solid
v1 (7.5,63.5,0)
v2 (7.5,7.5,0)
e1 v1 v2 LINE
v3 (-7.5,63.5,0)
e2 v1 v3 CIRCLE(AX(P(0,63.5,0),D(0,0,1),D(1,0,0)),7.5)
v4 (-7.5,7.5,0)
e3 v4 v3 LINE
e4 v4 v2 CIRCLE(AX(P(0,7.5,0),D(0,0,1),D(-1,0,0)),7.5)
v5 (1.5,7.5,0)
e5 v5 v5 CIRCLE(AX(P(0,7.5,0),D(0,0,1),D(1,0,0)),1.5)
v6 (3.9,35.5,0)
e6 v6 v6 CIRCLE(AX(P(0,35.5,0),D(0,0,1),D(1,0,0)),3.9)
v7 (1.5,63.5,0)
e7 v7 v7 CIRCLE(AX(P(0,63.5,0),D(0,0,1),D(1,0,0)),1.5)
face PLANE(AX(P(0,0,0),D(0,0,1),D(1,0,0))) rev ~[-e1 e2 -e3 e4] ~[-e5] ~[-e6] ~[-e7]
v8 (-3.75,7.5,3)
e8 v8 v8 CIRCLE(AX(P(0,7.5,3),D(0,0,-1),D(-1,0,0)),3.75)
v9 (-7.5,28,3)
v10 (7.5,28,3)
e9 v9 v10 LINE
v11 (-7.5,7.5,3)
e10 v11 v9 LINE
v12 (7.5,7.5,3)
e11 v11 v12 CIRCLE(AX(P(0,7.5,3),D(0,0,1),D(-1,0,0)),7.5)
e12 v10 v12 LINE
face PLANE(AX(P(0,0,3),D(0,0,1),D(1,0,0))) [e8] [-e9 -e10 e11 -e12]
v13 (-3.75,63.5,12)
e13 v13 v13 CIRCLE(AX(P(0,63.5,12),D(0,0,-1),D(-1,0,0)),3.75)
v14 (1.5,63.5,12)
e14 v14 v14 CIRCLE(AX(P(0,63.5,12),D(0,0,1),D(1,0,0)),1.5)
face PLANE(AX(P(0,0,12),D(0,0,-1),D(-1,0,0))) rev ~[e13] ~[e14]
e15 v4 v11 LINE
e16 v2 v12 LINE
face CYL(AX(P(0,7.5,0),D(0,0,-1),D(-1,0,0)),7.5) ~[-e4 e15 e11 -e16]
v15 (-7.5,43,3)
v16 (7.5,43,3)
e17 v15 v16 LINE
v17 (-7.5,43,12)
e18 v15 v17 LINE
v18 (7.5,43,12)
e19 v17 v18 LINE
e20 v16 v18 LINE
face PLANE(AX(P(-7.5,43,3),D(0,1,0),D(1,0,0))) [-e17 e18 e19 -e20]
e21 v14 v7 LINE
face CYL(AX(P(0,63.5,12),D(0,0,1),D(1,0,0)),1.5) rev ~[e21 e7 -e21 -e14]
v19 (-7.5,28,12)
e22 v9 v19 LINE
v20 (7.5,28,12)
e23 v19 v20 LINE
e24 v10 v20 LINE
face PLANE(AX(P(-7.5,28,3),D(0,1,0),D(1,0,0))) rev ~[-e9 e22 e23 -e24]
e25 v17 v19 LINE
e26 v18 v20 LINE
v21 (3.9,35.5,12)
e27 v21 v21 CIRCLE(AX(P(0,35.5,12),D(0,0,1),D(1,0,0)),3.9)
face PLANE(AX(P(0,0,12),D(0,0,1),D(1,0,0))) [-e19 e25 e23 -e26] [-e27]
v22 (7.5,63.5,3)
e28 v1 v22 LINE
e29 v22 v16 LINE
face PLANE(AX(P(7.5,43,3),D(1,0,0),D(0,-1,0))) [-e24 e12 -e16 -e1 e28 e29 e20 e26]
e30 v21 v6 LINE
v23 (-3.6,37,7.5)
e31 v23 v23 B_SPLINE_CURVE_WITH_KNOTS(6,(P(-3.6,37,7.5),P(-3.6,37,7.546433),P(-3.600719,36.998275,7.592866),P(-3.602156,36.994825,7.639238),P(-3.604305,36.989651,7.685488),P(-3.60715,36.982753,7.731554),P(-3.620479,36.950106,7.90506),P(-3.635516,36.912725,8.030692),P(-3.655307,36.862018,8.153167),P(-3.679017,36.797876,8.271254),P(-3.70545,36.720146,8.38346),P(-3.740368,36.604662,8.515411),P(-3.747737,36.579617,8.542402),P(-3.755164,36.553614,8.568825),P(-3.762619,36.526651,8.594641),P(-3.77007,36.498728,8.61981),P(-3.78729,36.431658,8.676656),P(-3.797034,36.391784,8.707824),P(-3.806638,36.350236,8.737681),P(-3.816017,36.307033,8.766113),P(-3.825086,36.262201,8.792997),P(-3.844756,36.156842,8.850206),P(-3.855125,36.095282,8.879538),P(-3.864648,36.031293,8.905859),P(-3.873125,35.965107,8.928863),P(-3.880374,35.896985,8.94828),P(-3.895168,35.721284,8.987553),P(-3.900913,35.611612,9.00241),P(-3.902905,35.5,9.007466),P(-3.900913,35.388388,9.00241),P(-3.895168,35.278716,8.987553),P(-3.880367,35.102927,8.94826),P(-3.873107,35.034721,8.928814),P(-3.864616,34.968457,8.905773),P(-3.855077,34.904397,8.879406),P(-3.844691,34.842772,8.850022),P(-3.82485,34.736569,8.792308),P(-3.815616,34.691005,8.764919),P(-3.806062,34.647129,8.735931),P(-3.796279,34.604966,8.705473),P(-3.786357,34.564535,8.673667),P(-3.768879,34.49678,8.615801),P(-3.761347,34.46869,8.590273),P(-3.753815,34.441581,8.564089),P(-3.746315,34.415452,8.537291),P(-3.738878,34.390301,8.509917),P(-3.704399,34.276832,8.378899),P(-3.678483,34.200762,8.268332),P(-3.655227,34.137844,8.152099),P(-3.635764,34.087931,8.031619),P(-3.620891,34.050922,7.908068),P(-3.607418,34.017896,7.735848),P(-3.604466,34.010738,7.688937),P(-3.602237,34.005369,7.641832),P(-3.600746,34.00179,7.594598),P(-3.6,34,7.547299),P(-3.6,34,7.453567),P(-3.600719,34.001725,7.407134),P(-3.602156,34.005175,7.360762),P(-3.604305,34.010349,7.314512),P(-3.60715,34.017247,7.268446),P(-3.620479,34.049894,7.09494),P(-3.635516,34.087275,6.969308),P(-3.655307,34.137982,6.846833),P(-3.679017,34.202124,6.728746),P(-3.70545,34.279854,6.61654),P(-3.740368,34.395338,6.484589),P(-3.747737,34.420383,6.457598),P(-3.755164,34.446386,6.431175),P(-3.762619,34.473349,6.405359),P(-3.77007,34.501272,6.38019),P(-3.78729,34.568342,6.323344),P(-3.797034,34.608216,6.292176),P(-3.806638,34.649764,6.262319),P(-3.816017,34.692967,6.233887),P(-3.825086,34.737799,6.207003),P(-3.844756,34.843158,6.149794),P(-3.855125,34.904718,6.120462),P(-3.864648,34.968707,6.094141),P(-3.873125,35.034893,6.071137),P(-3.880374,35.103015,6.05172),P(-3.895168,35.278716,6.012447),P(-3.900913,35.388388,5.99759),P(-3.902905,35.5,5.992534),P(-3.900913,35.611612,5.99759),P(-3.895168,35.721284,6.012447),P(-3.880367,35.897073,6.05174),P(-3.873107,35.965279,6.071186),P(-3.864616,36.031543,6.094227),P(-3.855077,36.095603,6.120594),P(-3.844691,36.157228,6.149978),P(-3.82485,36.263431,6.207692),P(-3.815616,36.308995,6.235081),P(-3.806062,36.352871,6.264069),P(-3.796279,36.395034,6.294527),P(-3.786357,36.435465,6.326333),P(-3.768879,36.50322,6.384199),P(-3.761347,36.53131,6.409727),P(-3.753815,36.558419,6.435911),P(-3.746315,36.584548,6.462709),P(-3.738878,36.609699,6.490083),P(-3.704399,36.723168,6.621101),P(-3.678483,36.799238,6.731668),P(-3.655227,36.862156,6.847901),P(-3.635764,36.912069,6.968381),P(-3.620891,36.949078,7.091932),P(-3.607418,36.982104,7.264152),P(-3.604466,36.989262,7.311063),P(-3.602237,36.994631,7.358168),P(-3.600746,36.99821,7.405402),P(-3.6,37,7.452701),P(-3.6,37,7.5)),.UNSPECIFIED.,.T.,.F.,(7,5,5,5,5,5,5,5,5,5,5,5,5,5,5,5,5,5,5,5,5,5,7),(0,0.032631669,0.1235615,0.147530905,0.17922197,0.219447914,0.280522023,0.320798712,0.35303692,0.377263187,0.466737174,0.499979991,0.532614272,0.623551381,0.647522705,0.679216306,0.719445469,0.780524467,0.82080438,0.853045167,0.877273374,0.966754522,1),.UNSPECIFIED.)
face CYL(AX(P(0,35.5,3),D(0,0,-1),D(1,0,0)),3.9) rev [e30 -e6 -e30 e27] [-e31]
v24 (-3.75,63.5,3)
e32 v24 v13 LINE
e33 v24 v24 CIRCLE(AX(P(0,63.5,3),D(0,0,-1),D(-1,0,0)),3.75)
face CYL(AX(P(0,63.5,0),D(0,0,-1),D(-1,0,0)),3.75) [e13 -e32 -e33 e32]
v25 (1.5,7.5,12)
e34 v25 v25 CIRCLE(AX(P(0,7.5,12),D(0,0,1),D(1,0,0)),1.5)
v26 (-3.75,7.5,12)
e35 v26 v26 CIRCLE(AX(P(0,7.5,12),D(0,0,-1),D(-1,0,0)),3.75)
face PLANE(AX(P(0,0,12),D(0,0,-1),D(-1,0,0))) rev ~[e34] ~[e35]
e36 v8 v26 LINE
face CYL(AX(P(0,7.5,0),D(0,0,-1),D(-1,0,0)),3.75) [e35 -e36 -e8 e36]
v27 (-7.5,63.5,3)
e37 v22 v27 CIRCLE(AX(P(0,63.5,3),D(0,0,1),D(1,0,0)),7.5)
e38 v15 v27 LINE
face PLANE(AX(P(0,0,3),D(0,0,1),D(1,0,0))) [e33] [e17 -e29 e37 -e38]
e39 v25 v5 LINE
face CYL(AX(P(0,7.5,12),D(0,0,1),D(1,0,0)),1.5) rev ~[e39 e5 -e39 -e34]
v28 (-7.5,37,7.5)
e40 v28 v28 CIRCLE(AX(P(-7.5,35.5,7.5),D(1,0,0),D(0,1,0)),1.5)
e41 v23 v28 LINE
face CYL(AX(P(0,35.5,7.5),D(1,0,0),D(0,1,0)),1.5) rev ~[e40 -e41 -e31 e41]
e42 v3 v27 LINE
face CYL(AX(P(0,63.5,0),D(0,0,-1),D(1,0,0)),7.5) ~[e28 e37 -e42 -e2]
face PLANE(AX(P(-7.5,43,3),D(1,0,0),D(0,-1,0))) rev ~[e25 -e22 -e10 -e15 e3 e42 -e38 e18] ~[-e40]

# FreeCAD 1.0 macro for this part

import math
import FreeCAD as App
import Part
import Sketcher

V = App.Vector


def add_polygon(sketch, points):
    """Adds a closed chain of lines whose ends are joined by coincident constraints."""
    first, n = sketch.GeometryCount, len(points)
    for a, b in zip(points, points[1:] + points[:1]):
        sketch.addGeometry(Part.LineSegment(App.Vector(*a, 0), App.Vector(*b, 0)), False)
    for i in range(n):
        sketch.addConstraint(Sketcher.Constraint("Coincident", first + i, 2, first + (i + 1) % n, 1))

doc = App.newDocument("Part")
body = doc.addObject("PartDesign::Body", "Body")

# Sketch on XY plane
sketch1 = body.newObject("Sketcher::SketchObject", "Sketch")
sketch1.AttachmentSupport = (doc.getObject("XY_Plane"), [""])
sketch1.MapMode = "FlatFace"
sketch1.addGeometry(Part.LineSegment(V(7.5, 7.5, 0), V(7.5, 63.5, 0)), False)
sketch1.addGeometry(Part.ArcOfCircle(Part.Circle(V(0, 63.5, 0), V(0, 0, 1), 7.5), math.radians(0), math.radians(180)), False)
sketch1.addGeometry(Part.LineSegment(V(-7.5, 63.5, 0), V(-7.5, 7.5, 0)), False)
sketch1.addGeometry(Part.ArcOfCircle(Part.Circle(V(0, 7.5, 0), V(0, 0, 1), 7.5), math.radians(180), math.radians(360)), False)
sketch1.addGeometry(Part.Circle(V(0, 7.5, 0), V(0, 0, 1), 3.75), False)
sketch1.addGeometry(Part.Circle(V(0, 35.5, 0), V(0, 0, 1), 3.9), False)
sketch1.addGeometry(Part.Circle(V(0, 63.5, 0), V(0, 0, 1), 3.75), False)
sketch1.addConstraint(Sketcher.Constraint("Tangent", 0, 2, 1, 1))
sketch1.addConstraint(Sketcher.Constraint("Tangent", 1, 2, 2, 1))
sketch1.addConstraint(Sketcher.Constraint("Tangent", 2, 2, 3, 1))
sketch1.addConstraint(Sketcher.Constraint("Tangent", 3, 2, 0, 1))
sketch1.addConstraint(Sketcher.Constraint("Vertical", 0))
sketch1.addConstraint(Sketcher.Constraint("Vertical", 2))
sketch1.addConstraint(Sketcher.Constraint("Coincident", 4, 3, 3, 3))
sketch1.addConstraint(Sketcher.Constraint("Coincident", 6, 3, 1, 3))
sketch1.addConstraint(Sketcher.Constraint("Equal", 4, 6))
sketch1.addConstraint(Sketcher.Constraint("PointOnObject", 1, 3, -2))
sketch1.addConstraint(Sketcher.Constraint("PointOnObject", 5, 3, -2))
sketch1.addConstraint(Sketcher.Constraint("Diameter", 4, 7.5))
sketch1.addConstraint(Sketcher.Constraint("Diameter", 5, 7.8))
sketch1.addConstraint(Sketcher.Constraint("Radius", 1, 7.5))
sketch1.addConstraint(Sketcher.Constraint("DistanceY", 0, 1, 0, 2, 56.0))
sketch1.addConstraint(Sketcher.Constraint("DistanceY", -1, 1, 3, 3, 7.5))
sketch1.addConstraint(Sketcher.Constraint("DistanceY", 5, 3, 1, 3, 28.0))
pad1 = body.newObject("PartDesign::Pad", "Pad")
pad1.Profile = sketch1
pad1.Length = 3

# Sketch on XY plane
sketch2 = body.newObject("Sketcher::SketchObject", "Sketch001")
sketch2.AttachmentSupport = (doc.getObject("XY_Plane"), [""])
sketch2.MapMode = "FlatFace"
sketch2.addGeometry(Part.Circle(V(0, 63.5, 0), V(0, 0, 1), 3.75), False)
sketch2.addGeometry(Part.Circle(V(0, 7.5, 0), V(0, 0, 1), 3.75), False)
sketch2.addConstraint(Sketcher.Constraint("Equal", 0, 1))
sketch2.addConstraint(Sketcher.Constraint("PointOnObject", 0, 3, -2))
sketch2.addConstraint(Sketcher.Constraint("PointOnObject", 1, 3, -2))
sketch2.addConstraint(Sketcher.Constraint("Diameter", 0, 7.5))
sketch2.addConstraint(Sketcher.Constraint("DistanceY", 1, 3, 0, 3, 56.0))
sketch2.addConstraint(Sketcher.Constraint("DistanceY", -1, 1, 0, 3, 63.5))
pad2 = body.newObject("PartDesign::Pad", "Pad001")
pad2.Profile = sketch2
pad2.Length = 12

# Sketch on XY plane
sketch3 = body.newObject("Sketcher::SketchObject", "Sketch002")
sketch3.AttachmentSupport = (doc.getObject("XY_Plane"), [""])
sketch3.MapMode = "FlatFace"
sketch3.AttachmentOffset = App.Placement(V(0, 0, 12), App.Rotation())
sketch3.addGeometry(Part.Circle(V(0, 63.5, 0), V(0, 0, 1), 1.5), False)
sketch3.addGeometry(Part.Circle(V(0, 7.5, 0), V(0, 0, 1), 1.5), False)
sketch3.addConstraint(Sketcher.Constraint("Equal", 0, 1))
sketch3.addConstraint(Sketcher.Constraint("PointOnObject", 0, 3, -2))
sketch3.addConstraint(Sketcher.Constraint("PointOnObject", 1, 3, -2))
sketch3.addConstraint(Sketcher.Constraint("Diameter", 0, 3.0))
sketch3.addConstraint(Sketcher.Constraint("DistanceY", 1, 3, 0, 3, 56.0))
sketch3.addConstraint(Sketcher.Constraint("DistanceY", -1, 1, 0, 3, 63.5))
pocket1 = body.newObject("PartDesign::Pocket", "Pocket")
pocket1.Profile = sketch3
pocket1.Type = "ThroughAll"

# Sketch on XY plane
sketch4 = body.newObject("Sketcher::SketchObject", "Sketch003")
sketch4.AttachmentSupport = (doc.getObject("XY_Plane"), [""])
sketch4.MapMode = "FlatFace"
sketch4.AttachmentOffset = App.Placement(V(0, 0, 3), App.Rotation())
add_polygon(sketch4, [(7.5, 28), (7.5, 43), (-7.5, 43), (-7.5, 28)])  # lines 0-3
sketch4.addGeometry(Part.Circle(V(0, 35.5, 0), V(0, 0, 1), 3.9), False)  # 4
sketch4.addConstraint(Sketcher.Constraint("Vertical", 0))
sketch4.addConstraint(Sketcher.Constraint("Horizontal", 1))
sketch4.addConstraint(Sketcher.Constraint("Vertical", 2))
sketch4.addConstraint(Sketcher.Constraint("Horizontal", 3))
sketch4.addConstraint(Sketcher.Constraint("PointOnObject", 4, 3, -2))
sketch4.addConstraint(Sketcher.Constraint("Equal", 3, 0))
sketch4.addConstraint(Sketcher.Constraint("DistanceX", 1, 2, 1, 1, 15.0))
sketch4.addConstraint(Sketcher.Constraint("Diameter", 4, 7.8))
sketch4.addConstraint(Sketcher.Constraint("DistanceY", -1, 1, 0, 2, 43.0))
sketch4.addConstraint(Sketcher.Constraint("DistanceY", -1, 1, 4, 3, 35.5))
sketch4.addConstraint(Sketcher.Constraint("DistanceX", -1, 1, 0, 2, 7.5))
pad3 = body.newObject("PartDesign::Pad", "Pad002")
pad3.Profile = sketch4
pad3.Length = 9

# Sketch on YZ plane
sketch5 = body.newObject("Sketcher::SketchObject", "Sketch004")
sketch5.AttachmentSupport = (doc.getObject("YZ_Plane"), [""])
sketch5.MapMode = "FlatFace"
sketch5.addGeometry(Part.Circle(V(35.5, 7.5, 0), V(0, 0, 1), 1.5), False)
sketch5.addConstraint(Sketcher.Constraint("Diameter", 0, 3.0))
sketch5.addConstraint(Sketcher.Constraint("DistanceX", -1, 1, 0, 3, 35.5))
sketch5.addConstraint(Sketcher.Constraint("DistanceY", -1, 1, 0, 3, 7.5))
pocket2 = body.newObject("PartDesign::Pocket", "Pocket001")
pocket2.Profile = sketch5
pocket2.Type = "ThroughAll"

doc.recompute()
